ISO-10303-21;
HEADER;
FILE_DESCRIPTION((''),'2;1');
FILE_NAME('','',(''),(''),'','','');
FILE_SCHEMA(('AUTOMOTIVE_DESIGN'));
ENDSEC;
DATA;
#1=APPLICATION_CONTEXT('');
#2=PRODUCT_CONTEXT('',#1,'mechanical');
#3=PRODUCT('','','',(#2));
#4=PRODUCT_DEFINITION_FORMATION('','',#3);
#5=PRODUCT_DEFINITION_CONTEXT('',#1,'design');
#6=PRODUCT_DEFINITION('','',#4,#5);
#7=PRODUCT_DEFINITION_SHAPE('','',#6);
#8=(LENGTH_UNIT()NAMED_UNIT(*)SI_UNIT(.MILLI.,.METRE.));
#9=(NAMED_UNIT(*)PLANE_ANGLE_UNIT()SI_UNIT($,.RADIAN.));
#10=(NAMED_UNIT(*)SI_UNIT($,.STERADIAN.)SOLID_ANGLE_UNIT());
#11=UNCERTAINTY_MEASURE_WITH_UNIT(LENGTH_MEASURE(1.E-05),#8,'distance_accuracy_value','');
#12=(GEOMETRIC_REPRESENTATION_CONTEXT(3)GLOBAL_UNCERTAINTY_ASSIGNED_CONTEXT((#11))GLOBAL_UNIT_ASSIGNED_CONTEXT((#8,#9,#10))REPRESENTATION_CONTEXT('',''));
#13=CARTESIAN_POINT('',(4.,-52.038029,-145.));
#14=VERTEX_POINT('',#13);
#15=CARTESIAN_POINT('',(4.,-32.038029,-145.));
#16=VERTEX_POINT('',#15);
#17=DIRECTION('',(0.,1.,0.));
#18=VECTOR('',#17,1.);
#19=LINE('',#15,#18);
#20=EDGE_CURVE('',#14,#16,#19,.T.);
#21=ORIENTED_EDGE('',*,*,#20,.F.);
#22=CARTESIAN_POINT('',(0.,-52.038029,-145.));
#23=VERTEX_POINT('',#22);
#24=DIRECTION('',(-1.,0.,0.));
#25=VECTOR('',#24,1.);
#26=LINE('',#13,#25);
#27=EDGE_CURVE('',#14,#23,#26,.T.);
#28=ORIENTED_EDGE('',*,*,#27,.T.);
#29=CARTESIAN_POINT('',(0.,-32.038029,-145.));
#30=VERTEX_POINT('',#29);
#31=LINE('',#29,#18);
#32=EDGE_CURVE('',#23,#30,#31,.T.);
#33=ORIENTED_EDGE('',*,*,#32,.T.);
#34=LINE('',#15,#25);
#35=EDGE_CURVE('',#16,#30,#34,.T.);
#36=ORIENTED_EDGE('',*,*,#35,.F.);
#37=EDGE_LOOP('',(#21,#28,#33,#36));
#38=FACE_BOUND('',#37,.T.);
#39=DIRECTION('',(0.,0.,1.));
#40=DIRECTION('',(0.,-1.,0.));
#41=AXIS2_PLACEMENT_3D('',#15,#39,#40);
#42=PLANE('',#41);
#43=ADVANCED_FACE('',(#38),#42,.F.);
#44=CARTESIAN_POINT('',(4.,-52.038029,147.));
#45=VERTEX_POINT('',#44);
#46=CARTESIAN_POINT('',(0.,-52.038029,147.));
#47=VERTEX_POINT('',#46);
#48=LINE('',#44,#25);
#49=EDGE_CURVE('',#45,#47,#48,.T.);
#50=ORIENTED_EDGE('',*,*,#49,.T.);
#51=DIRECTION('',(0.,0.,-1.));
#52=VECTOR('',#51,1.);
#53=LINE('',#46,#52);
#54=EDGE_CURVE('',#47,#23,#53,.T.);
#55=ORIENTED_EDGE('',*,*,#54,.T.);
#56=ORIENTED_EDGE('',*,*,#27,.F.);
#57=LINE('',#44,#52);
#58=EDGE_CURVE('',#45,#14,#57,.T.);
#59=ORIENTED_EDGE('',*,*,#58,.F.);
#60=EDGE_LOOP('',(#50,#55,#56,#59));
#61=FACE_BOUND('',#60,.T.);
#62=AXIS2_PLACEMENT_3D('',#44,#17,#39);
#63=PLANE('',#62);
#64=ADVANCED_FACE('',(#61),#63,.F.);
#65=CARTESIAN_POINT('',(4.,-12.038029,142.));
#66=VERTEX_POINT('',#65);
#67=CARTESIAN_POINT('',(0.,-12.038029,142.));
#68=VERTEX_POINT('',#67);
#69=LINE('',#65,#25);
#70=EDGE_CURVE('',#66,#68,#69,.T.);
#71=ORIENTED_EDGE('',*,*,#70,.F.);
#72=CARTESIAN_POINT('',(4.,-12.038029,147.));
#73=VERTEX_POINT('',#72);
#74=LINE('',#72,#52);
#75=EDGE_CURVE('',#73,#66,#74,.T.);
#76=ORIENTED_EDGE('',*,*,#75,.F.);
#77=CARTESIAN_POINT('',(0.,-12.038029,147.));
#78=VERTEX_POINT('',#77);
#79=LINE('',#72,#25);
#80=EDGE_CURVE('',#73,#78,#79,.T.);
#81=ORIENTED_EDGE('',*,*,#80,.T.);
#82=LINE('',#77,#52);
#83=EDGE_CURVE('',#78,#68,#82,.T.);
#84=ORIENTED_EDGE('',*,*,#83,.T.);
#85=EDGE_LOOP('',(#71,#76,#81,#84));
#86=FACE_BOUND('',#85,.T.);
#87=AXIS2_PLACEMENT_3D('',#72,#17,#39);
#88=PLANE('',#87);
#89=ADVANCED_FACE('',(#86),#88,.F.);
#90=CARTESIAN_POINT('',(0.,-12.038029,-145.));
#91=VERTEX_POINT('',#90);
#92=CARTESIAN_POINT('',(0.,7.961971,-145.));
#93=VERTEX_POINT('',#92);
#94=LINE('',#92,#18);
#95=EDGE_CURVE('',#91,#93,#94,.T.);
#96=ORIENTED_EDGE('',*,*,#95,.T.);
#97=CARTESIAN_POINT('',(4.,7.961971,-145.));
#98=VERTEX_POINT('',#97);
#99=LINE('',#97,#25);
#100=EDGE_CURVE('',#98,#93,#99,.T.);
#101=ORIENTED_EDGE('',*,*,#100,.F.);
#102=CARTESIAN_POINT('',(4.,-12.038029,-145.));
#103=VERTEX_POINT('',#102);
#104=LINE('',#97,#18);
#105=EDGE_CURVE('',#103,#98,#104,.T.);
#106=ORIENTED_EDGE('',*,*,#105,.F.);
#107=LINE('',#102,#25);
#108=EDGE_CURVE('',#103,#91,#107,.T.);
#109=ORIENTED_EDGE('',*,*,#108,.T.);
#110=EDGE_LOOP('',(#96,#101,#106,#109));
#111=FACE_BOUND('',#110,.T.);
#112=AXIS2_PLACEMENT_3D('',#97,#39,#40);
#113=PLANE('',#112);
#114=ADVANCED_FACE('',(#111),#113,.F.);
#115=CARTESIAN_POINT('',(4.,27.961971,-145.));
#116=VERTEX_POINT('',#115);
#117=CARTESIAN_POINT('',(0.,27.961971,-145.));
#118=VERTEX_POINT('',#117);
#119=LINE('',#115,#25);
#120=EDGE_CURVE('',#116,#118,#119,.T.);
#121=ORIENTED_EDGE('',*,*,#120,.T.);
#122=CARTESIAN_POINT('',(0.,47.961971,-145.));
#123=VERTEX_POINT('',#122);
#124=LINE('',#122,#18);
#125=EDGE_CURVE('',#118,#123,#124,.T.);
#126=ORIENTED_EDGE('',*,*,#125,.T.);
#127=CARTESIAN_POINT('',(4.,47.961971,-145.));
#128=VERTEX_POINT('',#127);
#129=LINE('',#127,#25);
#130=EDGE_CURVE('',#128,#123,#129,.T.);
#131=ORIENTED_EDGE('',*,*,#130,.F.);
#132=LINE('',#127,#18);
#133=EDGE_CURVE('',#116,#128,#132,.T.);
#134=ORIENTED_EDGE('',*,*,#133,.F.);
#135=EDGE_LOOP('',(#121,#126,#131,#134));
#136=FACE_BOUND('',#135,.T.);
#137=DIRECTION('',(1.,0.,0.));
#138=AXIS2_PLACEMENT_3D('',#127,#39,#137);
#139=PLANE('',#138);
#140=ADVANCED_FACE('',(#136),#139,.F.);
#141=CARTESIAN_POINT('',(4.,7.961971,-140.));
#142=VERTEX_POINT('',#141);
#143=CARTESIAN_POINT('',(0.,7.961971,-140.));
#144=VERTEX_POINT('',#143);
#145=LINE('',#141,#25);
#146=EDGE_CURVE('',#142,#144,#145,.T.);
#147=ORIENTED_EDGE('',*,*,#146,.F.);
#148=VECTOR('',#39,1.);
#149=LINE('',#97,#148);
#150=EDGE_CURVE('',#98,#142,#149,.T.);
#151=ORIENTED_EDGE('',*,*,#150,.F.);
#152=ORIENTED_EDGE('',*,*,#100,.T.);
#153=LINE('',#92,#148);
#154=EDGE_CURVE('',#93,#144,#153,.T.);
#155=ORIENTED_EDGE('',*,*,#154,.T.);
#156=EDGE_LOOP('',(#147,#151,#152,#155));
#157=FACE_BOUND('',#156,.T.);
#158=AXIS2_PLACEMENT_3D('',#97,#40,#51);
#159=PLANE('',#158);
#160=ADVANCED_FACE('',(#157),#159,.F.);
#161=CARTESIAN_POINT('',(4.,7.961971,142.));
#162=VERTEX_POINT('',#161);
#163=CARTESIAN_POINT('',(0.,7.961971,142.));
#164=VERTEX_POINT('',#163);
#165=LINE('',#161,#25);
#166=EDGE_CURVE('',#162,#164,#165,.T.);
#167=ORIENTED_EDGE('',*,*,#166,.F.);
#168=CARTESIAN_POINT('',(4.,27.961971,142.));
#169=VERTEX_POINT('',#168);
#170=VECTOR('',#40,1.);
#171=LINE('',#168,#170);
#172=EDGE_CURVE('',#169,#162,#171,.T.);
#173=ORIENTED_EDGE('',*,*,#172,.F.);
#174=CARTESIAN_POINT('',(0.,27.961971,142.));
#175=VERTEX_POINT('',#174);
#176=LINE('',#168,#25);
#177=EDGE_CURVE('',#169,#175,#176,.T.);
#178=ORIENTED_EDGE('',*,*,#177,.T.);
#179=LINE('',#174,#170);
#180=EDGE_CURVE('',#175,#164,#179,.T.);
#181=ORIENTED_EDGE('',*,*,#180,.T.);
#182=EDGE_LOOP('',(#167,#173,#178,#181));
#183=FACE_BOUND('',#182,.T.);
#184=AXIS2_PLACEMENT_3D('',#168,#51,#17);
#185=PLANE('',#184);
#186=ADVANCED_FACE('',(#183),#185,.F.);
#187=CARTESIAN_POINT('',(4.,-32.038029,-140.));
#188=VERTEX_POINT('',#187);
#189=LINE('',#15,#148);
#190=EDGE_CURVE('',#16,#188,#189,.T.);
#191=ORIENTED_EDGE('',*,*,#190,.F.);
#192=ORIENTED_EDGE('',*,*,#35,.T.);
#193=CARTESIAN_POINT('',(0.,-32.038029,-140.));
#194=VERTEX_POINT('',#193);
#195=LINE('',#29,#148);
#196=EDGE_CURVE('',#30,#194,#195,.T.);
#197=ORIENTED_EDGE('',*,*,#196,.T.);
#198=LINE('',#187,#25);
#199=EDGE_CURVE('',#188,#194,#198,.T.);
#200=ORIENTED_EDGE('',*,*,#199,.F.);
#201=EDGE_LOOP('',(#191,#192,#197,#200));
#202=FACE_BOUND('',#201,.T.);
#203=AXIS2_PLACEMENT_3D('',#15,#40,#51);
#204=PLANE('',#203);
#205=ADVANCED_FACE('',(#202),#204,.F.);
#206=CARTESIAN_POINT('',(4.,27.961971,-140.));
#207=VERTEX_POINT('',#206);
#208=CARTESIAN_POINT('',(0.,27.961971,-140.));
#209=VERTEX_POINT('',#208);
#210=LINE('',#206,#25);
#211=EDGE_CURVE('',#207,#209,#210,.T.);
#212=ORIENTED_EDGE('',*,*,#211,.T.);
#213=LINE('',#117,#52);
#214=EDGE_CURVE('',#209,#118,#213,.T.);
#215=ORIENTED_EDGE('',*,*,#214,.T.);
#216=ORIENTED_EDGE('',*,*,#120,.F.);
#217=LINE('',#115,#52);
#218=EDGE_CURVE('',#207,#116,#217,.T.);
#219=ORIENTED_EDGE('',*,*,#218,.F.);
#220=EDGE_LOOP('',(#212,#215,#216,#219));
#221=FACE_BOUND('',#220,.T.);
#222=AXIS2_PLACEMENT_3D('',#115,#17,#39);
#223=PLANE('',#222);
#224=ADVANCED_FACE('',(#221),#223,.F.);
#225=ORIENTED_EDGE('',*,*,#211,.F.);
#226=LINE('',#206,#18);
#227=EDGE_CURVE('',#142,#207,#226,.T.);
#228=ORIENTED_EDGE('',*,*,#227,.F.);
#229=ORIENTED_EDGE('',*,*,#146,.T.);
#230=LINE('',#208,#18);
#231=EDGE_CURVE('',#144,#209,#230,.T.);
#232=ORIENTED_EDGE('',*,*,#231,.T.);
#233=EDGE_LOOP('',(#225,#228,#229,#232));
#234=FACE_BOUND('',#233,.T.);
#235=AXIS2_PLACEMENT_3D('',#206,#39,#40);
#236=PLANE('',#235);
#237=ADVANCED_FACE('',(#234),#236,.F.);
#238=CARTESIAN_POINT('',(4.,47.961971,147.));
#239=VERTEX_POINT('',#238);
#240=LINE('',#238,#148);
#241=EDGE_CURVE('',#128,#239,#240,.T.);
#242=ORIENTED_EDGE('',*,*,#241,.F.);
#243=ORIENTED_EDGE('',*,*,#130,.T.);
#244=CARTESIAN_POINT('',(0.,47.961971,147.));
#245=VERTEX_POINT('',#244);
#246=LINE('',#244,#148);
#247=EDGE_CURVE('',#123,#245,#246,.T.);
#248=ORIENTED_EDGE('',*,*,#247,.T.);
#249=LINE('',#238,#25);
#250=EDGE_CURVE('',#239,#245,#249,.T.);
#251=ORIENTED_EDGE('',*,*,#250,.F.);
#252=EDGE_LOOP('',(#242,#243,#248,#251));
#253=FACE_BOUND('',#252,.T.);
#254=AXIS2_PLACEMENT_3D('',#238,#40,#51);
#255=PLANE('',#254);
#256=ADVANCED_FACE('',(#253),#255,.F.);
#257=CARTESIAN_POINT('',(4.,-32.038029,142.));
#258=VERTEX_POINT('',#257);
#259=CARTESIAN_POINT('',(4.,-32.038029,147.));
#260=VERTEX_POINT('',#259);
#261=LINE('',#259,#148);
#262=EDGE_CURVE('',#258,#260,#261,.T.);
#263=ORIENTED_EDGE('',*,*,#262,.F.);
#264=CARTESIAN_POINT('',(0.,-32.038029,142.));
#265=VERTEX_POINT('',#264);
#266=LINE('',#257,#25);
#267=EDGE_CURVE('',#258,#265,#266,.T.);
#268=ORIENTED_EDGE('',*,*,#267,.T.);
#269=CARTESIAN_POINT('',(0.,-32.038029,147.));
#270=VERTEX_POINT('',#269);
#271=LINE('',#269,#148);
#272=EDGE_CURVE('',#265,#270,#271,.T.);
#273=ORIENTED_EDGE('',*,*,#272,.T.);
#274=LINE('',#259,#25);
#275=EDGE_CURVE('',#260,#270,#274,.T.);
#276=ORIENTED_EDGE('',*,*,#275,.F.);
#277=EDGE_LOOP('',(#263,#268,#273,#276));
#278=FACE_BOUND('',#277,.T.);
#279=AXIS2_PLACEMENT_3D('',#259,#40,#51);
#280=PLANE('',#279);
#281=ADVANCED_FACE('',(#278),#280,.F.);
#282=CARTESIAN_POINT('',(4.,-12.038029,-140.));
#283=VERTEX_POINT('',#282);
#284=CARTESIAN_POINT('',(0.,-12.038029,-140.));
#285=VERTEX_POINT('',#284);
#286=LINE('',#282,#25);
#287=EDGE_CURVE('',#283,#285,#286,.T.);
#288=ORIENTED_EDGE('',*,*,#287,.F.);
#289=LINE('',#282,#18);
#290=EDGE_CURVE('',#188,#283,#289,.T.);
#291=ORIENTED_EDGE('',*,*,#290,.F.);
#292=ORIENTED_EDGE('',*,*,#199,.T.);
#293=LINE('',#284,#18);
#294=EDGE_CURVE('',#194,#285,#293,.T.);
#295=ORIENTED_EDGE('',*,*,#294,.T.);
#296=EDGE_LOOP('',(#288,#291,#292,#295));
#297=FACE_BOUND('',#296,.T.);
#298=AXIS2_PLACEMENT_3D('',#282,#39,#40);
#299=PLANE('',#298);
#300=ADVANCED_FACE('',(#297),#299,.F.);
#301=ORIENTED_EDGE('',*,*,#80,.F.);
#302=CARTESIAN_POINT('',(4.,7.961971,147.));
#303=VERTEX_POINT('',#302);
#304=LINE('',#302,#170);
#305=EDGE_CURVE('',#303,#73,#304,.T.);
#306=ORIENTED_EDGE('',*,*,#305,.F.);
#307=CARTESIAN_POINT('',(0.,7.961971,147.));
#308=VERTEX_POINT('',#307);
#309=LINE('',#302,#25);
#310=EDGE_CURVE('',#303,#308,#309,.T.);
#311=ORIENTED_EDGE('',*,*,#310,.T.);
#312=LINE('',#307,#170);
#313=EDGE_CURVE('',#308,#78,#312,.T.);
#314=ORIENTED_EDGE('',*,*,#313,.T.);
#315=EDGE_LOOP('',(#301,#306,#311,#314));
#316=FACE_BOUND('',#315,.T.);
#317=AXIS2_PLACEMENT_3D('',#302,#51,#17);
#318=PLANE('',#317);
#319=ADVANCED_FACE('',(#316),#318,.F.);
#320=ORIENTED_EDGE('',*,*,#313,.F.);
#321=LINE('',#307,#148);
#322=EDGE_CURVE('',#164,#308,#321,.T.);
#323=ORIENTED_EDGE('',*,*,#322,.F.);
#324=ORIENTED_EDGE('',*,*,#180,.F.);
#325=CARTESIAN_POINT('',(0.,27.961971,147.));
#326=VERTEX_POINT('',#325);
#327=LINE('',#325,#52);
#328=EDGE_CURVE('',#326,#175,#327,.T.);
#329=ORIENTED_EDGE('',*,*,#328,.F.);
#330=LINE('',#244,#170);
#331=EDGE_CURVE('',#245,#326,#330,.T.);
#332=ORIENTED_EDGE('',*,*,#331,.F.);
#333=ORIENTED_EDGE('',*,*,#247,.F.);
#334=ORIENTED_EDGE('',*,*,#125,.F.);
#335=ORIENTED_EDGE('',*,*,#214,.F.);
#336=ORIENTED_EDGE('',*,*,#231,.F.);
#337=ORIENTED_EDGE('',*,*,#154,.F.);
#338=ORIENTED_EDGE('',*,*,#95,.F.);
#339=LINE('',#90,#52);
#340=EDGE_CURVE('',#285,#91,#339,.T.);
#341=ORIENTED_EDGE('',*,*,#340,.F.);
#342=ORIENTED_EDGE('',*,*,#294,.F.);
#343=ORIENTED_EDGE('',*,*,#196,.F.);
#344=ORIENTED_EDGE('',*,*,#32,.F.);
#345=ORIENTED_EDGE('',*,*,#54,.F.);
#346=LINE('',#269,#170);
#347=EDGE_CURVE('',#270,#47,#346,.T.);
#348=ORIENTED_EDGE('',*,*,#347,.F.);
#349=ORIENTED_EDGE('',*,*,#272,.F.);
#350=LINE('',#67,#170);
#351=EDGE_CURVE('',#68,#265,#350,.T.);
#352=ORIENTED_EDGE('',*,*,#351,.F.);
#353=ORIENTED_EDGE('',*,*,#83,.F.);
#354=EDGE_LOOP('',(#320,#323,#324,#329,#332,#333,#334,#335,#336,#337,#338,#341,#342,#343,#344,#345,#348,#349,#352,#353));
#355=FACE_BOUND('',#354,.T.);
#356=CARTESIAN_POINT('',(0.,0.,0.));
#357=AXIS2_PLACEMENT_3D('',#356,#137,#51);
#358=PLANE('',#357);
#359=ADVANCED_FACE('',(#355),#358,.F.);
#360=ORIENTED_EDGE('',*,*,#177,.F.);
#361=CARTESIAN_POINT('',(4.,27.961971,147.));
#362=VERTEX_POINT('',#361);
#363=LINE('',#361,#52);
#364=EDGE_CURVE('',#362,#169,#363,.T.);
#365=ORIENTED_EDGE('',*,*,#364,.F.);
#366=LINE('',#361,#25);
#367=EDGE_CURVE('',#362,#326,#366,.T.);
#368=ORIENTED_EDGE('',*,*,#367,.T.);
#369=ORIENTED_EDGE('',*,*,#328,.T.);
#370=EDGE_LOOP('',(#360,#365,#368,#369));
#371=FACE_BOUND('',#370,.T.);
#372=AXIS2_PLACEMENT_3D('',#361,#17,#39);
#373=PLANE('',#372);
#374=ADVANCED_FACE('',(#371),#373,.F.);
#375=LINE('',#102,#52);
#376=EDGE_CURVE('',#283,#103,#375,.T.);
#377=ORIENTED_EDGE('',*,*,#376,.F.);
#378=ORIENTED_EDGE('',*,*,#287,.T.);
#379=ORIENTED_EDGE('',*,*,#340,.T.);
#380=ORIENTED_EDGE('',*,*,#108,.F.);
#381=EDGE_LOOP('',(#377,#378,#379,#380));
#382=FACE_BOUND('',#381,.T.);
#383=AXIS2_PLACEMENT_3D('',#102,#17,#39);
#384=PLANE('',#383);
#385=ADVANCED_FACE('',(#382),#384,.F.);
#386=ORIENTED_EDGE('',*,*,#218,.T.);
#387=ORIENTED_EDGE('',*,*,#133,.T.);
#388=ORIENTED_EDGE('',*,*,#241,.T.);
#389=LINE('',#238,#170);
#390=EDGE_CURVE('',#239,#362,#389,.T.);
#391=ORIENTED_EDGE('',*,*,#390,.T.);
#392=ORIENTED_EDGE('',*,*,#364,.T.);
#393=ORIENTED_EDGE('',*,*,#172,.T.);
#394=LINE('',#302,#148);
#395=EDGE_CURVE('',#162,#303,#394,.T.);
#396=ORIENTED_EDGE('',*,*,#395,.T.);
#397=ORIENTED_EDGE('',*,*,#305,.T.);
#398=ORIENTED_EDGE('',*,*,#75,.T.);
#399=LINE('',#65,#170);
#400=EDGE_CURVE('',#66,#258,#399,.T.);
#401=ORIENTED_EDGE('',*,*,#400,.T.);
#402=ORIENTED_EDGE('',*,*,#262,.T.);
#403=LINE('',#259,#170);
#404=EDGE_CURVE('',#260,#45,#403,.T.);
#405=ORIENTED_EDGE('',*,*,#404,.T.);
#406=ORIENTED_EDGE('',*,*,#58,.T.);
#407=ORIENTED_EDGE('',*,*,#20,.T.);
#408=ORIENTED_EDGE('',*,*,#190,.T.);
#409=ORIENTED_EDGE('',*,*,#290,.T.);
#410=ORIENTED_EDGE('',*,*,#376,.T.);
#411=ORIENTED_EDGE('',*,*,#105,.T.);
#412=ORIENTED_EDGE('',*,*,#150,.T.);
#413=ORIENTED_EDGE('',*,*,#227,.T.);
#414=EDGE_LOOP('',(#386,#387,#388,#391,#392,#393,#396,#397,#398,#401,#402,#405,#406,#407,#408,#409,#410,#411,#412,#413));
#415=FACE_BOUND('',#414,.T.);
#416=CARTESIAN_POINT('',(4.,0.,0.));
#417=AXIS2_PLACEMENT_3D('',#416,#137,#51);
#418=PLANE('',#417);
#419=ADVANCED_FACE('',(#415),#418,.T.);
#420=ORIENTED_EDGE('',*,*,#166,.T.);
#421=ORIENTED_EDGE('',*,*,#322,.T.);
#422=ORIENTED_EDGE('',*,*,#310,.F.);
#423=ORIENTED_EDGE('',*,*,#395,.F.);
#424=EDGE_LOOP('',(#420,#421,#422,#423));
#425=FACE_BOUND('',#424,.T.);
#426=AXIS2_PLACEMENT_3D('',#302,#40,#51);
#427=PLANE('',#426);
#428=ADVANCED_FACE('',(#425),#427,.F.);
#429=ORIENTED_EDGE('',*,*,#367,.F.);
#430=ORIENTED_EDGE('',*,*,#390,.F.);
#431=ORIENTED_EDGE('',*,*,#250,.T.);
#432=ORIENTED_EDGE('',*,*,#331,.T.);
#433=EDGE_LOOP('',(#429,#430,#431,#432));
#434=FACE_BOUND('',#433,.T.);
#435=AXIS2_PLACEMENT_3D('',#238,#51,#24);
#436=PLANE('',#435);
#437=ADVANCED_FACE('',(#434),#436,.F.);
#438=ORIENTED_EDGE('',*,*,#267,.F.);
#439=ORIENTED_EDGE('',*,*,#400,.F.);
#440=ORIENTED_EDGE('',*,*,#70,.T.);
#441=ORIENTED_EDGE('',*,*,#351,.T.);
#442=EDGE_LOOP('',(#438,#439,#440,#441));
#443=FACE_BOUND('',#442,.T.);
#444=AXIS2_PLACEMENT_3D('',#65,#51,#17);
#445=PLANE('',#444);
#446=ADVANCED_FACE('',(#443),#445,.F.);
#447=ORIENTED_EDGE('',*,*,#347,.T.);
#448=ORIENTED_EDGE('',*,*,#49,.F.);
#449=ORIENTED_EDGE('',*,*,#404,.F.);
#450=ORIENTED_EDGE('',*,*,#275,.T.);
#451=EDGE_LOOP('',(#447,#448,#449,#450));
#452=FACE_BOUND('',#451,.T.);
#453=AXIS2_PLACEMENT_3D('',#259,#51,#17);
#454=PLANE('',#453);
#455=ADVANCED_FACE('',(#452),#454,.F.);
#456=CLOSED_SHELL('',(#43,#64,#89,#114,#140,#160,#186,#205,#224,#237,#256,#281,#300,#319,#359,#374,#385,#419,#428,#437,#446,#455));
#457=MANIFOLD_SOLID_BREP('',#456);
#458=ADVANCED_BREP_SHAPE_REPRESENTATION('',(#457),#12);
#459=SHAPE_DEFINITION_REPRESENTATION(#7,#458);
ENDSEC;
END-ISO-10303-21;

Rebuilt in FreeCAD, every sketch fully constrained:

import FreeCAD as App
import Part
import Sketcher


def add_polygon(sketch, points):
    """Adds a closed chain of lines whose ends are joined by coincident constraints."""
    first, n = sketch.GeometryCount, len(points)
    for a, b in zip(points, points[1:] + points[:1]):
        sketch.addGeometry(Part.LineSegment(App.Vector(*a, 0), App.Vector(*b, 0)), False)
    for i in range(n):
        sketch.addConstraint(Sketcher.Constraint("Coincident", first + i, 2, first + (i + 1) % n, 1))

doc = App.newDocument("Part")
body = doc.addObject("PartDesign::Body", "Body")

sketch1 = doc.addObject("Sketcher::SketchObject", "Sketch")
body.addObject(sketch1)
sketch1.AttachmentSupport = (doc.YZ_Plane, [""])
sketch1.MapMode = "FlatFace"
add_polygon(sketch1, [(48, -145), (48, 147), (28, 147), (28, 142), (8, 142), (8, 147), (-12, 147), (-12, 142), (-32, 142), (-32, 147), (-52, 147), (-52, -145), (-32, -145), (-32, -140), (-12, -140), (-12, -145), (8, -145), (8, -140), (28, -140), (28, -145)])
sketch1.addConstraint(Sketcher.Constraint("Vertical", 0))
sketch1.addConstraint(Sketcher.Constraint("Horizontal", 1))
sketch1.addConstraint(Sketcher.Constraint("Vertical", 2))
sketch1.addConstraint(Sketcher.Constraint("Horizontal", 3))
sketch1.addConstraint(Sketcher.Constraint("Vertical", 4))
sketch1.addConstraint(Sketcher.Constraint("Horizontal", 5))
sketch1.addConstraint(Sketcher.Constraint("Vertical", 6))
sketch1.addConstraint(Sketcher.Constraint("Horizontal", 7))
sketch1.addConstraint(Sketcher.Constraint("Vertical", 8))
sketch1.addConstraint(Sketcher.Constraint("Horizontal", 9))
sketch1.addConstraint(Sketcher.Constraint("Vertical", 10))
sketch1.addConstraint(Sketcher.Constraint("Horizontal", 11))
sketch1.addConstraint(Sketcher.Constraint("Vertical", 12))
sketch1.addConstraint(Sketcher.Constraint("Horizontal", 13))
sketch1.addConstraint(Sketcher.Constraint("Vertical", 14))
sketch1.addConstraint(Sketcher.Constraint("Horizontal", 15))
sketch1.addConstraint(Sketcher.Constraint("Vertical", 16))
sketch1.addConstraint(Sketcher.Constraint("Horizontal", 17))
sketch1.addConstraint(Sketcher.Constraint("Vertical", 18))
sketch1.addConstraint(Sketcher.Constraint("Horizontal", 19))
sketch1.addConstraint(Sketcher.Constraint("Horizontal", 1, 2, 4, 2))
sketch1.addConstraint(Sketcher.Constraint("Horizontal", 3, 2, 6, 2))
sketch1.addConstraint(Sketcher.Constraint("Horizontal", 5, 2, 8, 2))
sketch1.addConstraint(Sketcher.Constraint("Horizontal", 11, 2, 14, 2))
sketch1.addConstraint(Sketcher.Constraint("Horizontal", 13, 2, 16, 2))
sketch1.addConstraint(Sketcher.Constraint("Horizontal", 15, 2, 18, 2))
sketch1.addConstraint(Sketcher.Constraint("Vertical", 8, 2, 11, 2))
sketch1.addConstraint(Sketcher.Constraint("Vertical", 6, 2, 13, 2))
sketch1.addConstraint(Sketcher.Constraint("Vertical", 4, 2, 15, 2))
sketch1.addConstraint(Sketcher.Constraint("Vertical", 2, 2, 17, 2))
sketch1.addConstraint(Sketcher.Constraint("Equal", 1, 3))
sketch1.addConstraint(Sketcher.Constraint("Equal", 3, 5))
sketch1.addConstraint(Sketcher.Constraint("Equal", 5, 7))
sketch1.addConstraint(Sketcher.Constraint("Equal", 7, 9))
sketch1.addConstraint(Sketcher.Constraint("Equal", 8, 12))
sketch1.addConstraint(Sketcher.Constraint("DistanceX", 1, 2, 1, 1, 20.0))
sketch1.addConstraint(Sketcher.Constraint("DistanceY", 0, 1, 0, 2, 292.0))
sketch1.addConstraint(Sketcher.Constraint("DistanceY", 2, 2, 2, 1, 5.0))
sketch1.addConstraint(Sketcher.Constraint("DistanceY", -1, 1, 0, 2, 147.0))
sketch1.addConstraint(Sketcher.Constraint("DistanceX", -1, 1, 0, 2, 47.961971))
pad1 = doc.addObject("PartDesign::Pad", "Pad")
body.addObject(pad1)
pad1.Profile = sketch1
pad1.Length = 4

doc.recompute()
